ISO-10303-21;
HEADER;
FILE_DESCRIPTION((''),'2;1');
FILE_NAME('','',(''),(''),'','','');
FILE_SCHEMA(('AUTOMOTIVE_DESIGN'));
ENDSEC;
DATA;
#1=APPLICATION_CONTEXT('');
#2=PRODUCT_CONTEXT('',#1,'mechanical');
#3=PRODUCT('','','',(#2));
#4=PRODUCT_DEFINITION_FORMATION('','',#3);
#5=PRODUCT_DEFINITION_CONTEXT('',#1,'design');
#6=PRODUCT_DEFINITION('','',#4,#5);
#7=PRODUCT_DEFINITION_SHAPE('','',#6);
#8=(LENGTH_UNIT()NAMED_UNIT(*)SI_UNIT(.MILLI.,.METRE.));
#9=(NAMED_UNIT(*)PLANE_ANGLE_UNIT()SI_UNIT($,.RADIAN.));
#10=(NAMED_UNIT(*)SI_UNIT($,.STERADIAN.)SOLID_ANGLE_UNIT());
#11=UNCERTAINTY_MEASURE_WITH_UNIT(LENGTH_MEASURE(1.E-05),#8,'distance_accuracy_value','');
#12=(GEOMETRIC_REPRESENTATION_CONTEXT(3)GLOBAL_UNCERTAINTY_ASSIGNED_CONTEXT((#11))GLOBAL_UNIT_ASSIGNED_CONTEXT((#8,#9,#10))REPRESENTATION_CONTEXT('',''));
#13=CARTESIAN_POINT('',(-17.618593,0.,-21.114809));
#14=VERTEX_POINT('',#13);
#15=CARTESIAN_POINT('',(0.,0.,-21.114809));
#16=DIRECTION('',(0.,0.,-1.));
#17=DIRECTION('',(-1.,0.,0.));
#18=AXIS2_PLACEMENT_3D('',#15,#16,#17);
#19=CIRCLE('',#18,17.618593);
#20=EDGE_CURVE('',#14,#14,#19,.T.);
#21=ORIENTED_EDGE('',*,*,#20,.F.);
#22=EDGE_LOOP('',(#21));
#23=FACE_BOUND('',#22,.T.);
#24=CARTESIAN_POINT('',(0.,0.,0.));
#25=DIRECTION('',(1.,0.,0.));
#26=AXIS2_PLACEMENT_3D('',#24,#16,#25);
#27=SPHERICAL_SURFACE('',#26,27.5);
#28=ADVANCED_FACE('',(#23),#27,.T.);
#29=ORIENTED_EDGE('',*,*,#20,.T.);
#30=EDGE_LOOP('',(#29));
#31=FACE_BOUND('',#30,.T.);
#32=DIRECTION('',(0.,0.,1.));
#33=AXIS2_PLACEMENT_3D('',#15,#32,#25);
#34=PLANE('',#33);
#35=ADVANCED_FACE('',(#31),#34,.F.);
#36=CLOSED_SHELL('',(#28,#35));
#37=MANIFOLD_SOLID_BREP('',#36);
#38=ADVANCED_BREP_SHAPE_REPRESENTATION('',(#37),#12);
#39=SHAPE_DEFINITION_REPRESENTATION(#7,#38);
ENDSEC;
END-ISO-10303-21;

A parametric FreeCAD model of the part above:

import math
import FreeCAD as App
import Part
import Sketcher

doc = App.newDocument("Part")
body = doc.addObject("PartDesign::Body", "Body")

sketch1 = body.newObject("Sketcher::SketchObject", "Sketch")
sketch1.AttachmentSupport = (doc.getObject("XZ_Plane"), [""])
sketch1.MapMode = "FlatFace"
sketch1.addGeometry([
    Part.LineSegment(App.Vector(18, -21, 0), App.Vector(0, -21, 0)),
    Part.LineSegment(App.Vector(0, -21, 0), App.Vector(0, 28, 0)),
    Part.ArcOfCircle(Part.Circle(App.Vector(0, 0, 0), App.Vector(0, 0, 1), 28), math.radians(-50), math.radians(90)),
], False)
sketch1.addConstraint([
    Sketcher.Constraint("Coincident", 0, 2, 1, 1),
    Sketcher.Constraint("Coincident", 1, 2, 2, 2),
    Sketcher.Constraint("Coincident", 2, 1, 0, 1),
    Sketcher.Constraint("Horizontal", 0),
    Sketcher.Constraint("Vertical", 1),
    Sketcher.Constraint("Coincident", 2, 3, -1, 1),
    Sketcher.Constraint("PointOnObject", 0, 2, -2),
    Sketcher.Constraint("Radius", 2, 27.5),
    Sketcher.Constraint("DistanceY", 1, 1, 1, 2, 48.614809),
])
revolution = body.newObject("PartDesign::Revolution", "Revolution")
revolution.Profile = sketch1
revolution.ReferenceAxis = (sketch1, ["V_Axis"])
revolution.Angle = 360

doc.recompute()
